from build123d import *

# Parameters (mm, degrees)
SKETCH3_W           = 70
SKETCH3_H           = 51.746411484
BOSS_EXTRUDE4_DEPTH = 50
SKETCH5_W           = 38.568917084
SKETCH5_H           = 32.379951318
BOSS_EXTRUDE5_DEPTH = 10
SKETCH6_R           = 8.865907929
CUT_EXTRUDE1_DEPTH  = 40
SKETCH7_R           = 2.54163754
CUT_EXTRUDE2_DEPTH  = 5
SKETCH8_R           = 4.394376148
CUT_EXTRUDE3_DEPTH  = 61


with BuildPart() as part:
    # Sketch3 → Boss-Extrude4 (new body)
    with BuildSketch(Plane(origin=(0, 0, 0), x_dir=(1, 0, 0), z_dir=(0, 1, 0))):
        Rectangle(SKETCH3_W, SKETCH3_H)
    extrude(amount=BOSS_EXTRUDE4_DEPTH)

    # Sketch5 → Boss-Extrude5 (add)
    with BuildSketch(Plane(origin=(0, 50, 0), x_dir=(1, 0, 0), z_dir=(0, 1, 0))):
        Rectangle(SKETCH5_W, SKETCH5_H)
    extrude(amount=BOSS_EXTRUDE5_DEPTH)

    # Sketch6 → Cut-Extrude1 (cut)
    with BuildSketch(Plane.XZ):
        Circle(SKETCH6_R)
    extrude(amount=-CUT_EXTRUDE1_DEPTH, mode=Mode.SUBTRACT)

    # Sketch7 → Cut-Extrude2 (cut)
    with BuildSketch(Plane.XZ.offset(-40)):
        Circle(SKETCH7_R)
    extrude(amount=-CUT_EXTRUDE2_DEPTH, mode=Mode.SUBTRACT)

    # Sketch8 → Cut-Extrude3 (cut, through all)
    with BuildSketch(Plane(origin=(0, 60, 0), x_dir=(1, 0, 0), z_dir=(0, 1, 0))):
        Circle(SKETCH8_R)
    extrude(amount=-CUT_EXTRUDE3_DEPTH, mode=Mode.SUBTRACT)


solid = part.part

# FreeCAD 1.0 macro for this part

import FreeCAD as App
import Part
import Sketcher
from FreeCAD import Vector

doc = App.newDocument("Part")
body = doc.addObject("PartDesign::Body", "Body")

sketch1 = body.newObject("Sketcher::SketchObject", "Sketch")
sketch1.AttachmentSupport = (doc.getObject("XZ_Plane"), [""])
sketch1.MapMode = "FlatFace"
sketch1.addGeometry([
    Part.LineSegment(Vector(-35, -26, 0), Vector(-35, 26, 0)),
    Part.LineSegment(Vector(-35, 26, 0), Vector(35, 26, 0)),
    Part.LineSegment(Vector(35, 26, 0), Vector(35, -26, 0)),
    Part.LineSegment(Vector(35, -26, 0), Vector(-35, -26, 0)),
], False)
sketch1.addConstraint([
    Sketcher.Constraint("Coincident", 0, 2, 1, 1),
    Sketcher.Constraint("Coincident", 1, 2, 2, 1),
    Sketcher.Constraint("Coincident", 2, 2, 3, 1),
    Sketcher.Constraint("Coincident", 3, 2, 0, 1),
    Sketcher.Constraint("Vertical", 0),
    Sketcher.Constraint("Horizontal", 1),
    Sketcher.Constraint("Vertical", 2),
    Sketcher.Constraint("Horizontal", 3),
    Sketcher.Constraint("Symmetric", 0, 2, 2, 2, -1, 1),
    Sketcher.Constraint("DistanceX", 1, 1, 1, 2, 70.0),
    Sketcher.Constraint("DistanceY", 0, 1, 0, 2, 51.746411),
])
pad1 = body.newObject("PartDesign::Pad", "Pad")
pad1.Profile = sketch1
pad1.Length = 50
pad1.Reversed = True

sketch2 = body.newObject("Sketcher::SketchObject", "Sketch001")
sketch2.AttachmentSupport = (doc.getObject("XZ_Plane"), [""])
sketch2.MapMode = "FlatFace"
sketch2.AttachmentOffset = App.Placement(Vector(0, 0, -50), App.Rotation())
sketch2.addGeometry([
    Part.LineSegment(Vector(-19, -16, 0), Vector(-19, 16, 0)),
    Part.LineSegment(Vector(-19, 16, 0), Vector(19, 16, 0)),
    Part.LineSegment(Vector(19, 16, 0), Vector(19, -16, 0)),
    Part.LineSegment(Vector(19, -16, 0), Vector(-19, -16, 0)),
], False)
sketch2.addConstraint([
    Sketcher.Constraint("Coincident", 0, 2, 1, 1),
    Sketcher.Constraint("Coincident", 1, 2, 2, 1),
    Sketcher.Constraint("Coincident", 2, 2, 3, 1),
    Sketcher.Constraint("Coincident", 3, 2, 0, 1),
    Sketcher.Constraint("Vertical", 0),
    Sketcher.Constraint("Horizontal", 1),
    Sketcher.Constraint("Vertical", 2),
    Sketcher.Constraint("Horizontal", 3),
    Sketcher.Constraint("Symmetric", 0, 2, 2, 2, -1, 1),
    Sketcher.Constraint("DistanceY", 0, 1, 0, 2, 32.379951),
    Sketcher.Constraint("DistanceX", 1, 1, 1, 2, 38.568917),
])
pad2 = body.newObject("PartDesign::Pad", "Pad001")
pad2.Profile = sketch2
pad2.Length = 10
pad2.Reversed = True

sketch3 = body.newObject("Sketcher::SketchObject", "Sketch002")
sketch3.AttachmentSupport = (doc.getObject("XZ_Plane"), [""])
sketch3.MapMode = "FlatFace"
sketch3.addGeometry(Part.Circle(Vector(0, 0, 0), Vector(0, 0, 1), 9), False)
sketch3.addConstraint([
    Sketcher.Constraint("Coincident", 0, 3, -1, 1),
    Sketcher.Constraint("Diameter", 0, 17.731816),
])
pocket1 = body.newObject("PartDesign::Pocket", "Pocket")
pocket1.Profile = sketch3
pocket1.Length = 40

sketch4 = body.newObject("Sketcher::SketchObject", "Sketch003")
sketch4.AttachmentSupport = (doc.getObject("XZ_Plane"), [""])
sketch4.MapMode = "FlatFace"
sketch4.AttachmentOffset = App.Placement(Vector(0, 0, -40), App.Rotation())
sketch4.addGeometry(Part.Circle(Vector(0, 0, 0), Vector(0, 0, 1), 2.5), False)
sketch4.addConstraint([
    Sketcher.Constraint("Coincident", 0, 3, -1, 1),
    Sketcher.Constraint("Diameter", 0, 5.083275),
])
pocket2 = body.newObject("PartDesign::Pocket", "Pocket001")
pocket2.Profile = sketch4
pocket2.Length = 5

sketch5 = body.newObject("Sketcher::SketchObject", "Sketch004")
sketch5.AttachmentSupport = (doc.getObject("XZ_Plane"), [""])
sketch5.MapMode = "FlatFace"
sketch5.AttachmentOffset = App.Placement(Vector(0, 0, -60), App.Rotation())
sketch5.addGeometry(Part.Circle(Vector(0, 0, 0), Vector(0, 0, 1), 4.4), False)
sketch5.addConstraint([
    Sketcher.Constraint("Coincident", 0, 3, -1, 1),
    Sketcher.Constraint("Diameter", 0, 8.788752),
])
pocket3 = body.newObject("PartDesign::Pocket", "Pocket002")
pocket3.Profile = sketch5
pocket3.Type = "ThroughAll"
pocket3.Reversed = True

doc.recompute()
